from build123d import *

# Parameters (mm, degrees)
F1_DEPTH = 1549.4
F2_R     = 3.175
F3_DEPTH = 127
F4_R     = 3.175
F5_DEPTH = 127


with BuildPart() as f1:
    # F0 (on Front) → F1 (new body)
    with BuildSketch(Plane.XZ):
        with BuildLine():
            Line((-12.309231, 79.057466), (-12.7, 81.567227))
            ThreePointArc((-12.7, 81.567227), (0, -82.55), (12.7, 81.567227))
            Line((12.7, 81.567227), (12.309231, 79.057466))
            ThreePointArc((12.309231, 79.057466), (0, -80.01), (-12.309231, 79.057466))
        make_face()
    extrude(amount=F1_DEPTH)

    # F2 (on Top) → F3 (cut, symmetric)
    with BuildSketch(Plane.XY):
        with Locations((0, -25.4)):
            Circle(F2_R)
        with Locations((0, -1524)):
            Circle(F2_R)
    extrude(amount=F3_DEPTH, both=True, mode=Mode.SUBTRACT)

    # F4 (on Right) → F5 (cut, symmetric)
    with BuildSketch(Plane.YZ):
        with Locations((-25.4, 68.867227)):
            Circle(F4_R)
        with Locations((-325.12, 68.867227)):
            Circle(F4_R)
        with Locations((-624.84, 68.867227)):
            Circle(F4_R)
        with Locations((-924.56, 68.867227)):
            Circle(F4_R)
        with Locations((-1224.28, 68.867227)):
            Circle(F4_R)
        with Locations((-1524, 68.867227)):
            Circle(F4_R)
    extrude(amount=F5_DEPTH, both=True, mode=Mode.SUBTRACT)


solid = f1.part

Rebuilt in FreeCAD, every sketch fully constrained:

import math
import FreeCAD as App
import Part
import Sketcher

V = App.Vector
Q = App.Units.Quantity

doc = App.newDocument("Part")
params = doc.addObject("Spreadsheet::Sheet", "Params")
for row, (alias, value) in enumerate([
    ("sketch1_radius", "3.25 in"),
    ("sketch1_radius2", "3.15 in"),
    ("pad1_length", "61 in"),
    ("sketch2_diameter", "0.25 in"),
    ("pocket1_length", "10 in"),
    ("sketch3_diameter", "0.25 in"),
    ("pocket2_length", "10 in"),
], start=1):
    params.set(f"A{row}", alias)
    params.set(f"B{row}", "=" + value)
    params.setAlias(f"B{row}", alias)

body = doc.addObject("PartDesign::Body", "Body")

# Sketch on XZ plane
sketch1 = doc.addObject("Sketcher::SketchObject", "Sketch")
body.addObject(sketch1)
sketch1.AttachmentSupport = (doc.XZ_Plane, [""])
sketch1.MapMode = "FlatFace"
sketch1.addGeometry(Part.LineSegment(V(-12.3, 79.1, 0), V(-12.7, 81.6, 0)), False)
sketch1.addGeometry(Part.ArcOfCircle(Part.Circle(V(0, 0, 0), V(0, 0, 1), 82.6), math.radians(99), math.radians(441)), False)
sketch1.addGeometry(Part.LineSegment(V(12.7, 81.6, 0), V(12.3, 79.1, 0)), False)
sketch1.addGeometry(Part.ArcOfCircle(Part.Circle(V(0, 0, 0), V(0, 0, 1), 80), math.radians(99), math.radians(441)), False)
sketch1.addConstraint(Sketcher.Constraint("Coincident", 0, 2, 1, 1))
sketch1.addConstraint(Sketcher.Constraint("Coincident", 1, 2, 2, 1))
sketch1.addConstraint(Sketcher.Constraint("Coincident", 2, 2, 3, 2))
sketch1.addConstraint(Sketcher.Constraint("Coincident", 3, 1, 0, 1))
sketch1.addConstraint(Sketcher.Constraint("Coincident", 1, 3, -1, 1))
sketch1.addConstraint(Sketcher.Constraint("Coincident", 3, 3, -1, 1))
sketch1.addConstraint(Sketcher.Constraint("Horizontal", 0, 2, 1, 2))
sketch1.addConstraint(Sketcher.Constraint("Horizontal", 2, 2, 3, 1))
sketch1.addConstraint(Sketcher.Constraint("Radius", 1, Q("3.25 in")))
sketch1.addConstraint(Sketcher.Constraint("Radius", 3, Q("3.15 in")))
sketch1.addConstraint(Sketcher.Constraint("DistanceX", 0, 2, 1, 2, Q("1 in")))
sketch1.addConstraint(Sketcher.Constraint("DistanceX", -1, 1, 2, 2, Q("12.309231 mm")))
sketch1.setExpression("Constraints[8]", "Params.sketch1_radius")
sketch1.setExpression("Constraints[9]", "Params.sketch1_radius2")
pad1 = doc.addObject("PartDesign::Pad", "Pad")
body.addObject(pad1)
pad1.Profile = sketch1
pad1.setExpression("Length", "Params.pad1_length")

# Sketch on XY plane
sketch2 = doc.addObject("Sketcher::SketchObject", "Sketch001")
body.addObject(sketch2)
sketch2.AttachmentSupport = (doc.XY_Plane, [""])
sketch2.MapMode = "FlatFace"
sketch2.addGeometry(Part.Circle(V(0, -25.4, 0), V(0, 0, 1), 3.2), False)
sketch2.addGeometry(Part.Circle(V(0, -1524, 0), V(0, 0, 1), 3.2), False)
sketch2.addConstraint(Sketcher.Constraint("Equal", 0, 1))
sketch2.addConstraint(Sketcher.Constraint("PointOnObject", 0, 3, -2))
sketch2.addConstraint(Sketcher.Constraint("PointOnObject", 1, 3, -2))
sketch2.addConstraint(Sketcher.Constraint("Diameter", 0, Q("0.25 in")))
sketch2.addConstraint(Sketcher.Constraint("DistanceY", 0, 3, -1, 1, Q("1 in")))
sketch2.addConstraint(Sketcher.Constraint("DistanceY", 1, 3, -1, 1, Q("60 in")))
sketch2.setExpression("Constraints[3]", "Params.sketch2_diameter")
pocket1 = doc.addObject("PartDesign::Pocket", "Pocket")
body.addObject(pocket1)
pocket1.Profile = sketch2
pocket1.setExpression("Length", "Params.pocket1_length")
pocket1.Midplane = True

# Sketch on YZ plane
sketch3 = doc.addObject("Sketcher::SketchObject", "Sketch002")
body.addObject(sketch3)
sketch3.AttachmentSupport = (doc.YZ_Plane, [""])
sketch3.MapMode = "FlatFace"
sketch3.addGeometry(Part.Circle(V(-25.4, 68.9, 0), V(0, 0, 1), 3.2), False)
sketch3.addGeometry(Part.Circle(V(-325.1, 68.9, 0), V(0, 0, 1), 3.2), False)
sketch3.addGeometry(Part.Circle(V(-624.8, 68.9, 0), V(0, 0, 1), 3.2), False)
sketch3.addGeometry(Part.Circle(V(-924.6, 68.9, 0), V(0, 0, 1), 3.2), False)
sketch3.addGeometry(Part.Circle(V(-1224.3, 68.9, 0), V(0, 0, 1), 3.2), False)
sketch3.addGeometry(Part.Circle(V(-1524, 68.9, 0), V(0, 0, 1), 3.2), False)
sketch3.addConstraint(Sketcher.Constraint("Equal", 0, 1))
sketch3.addConstraint(Sketcher.Constraint("Equal", 1, 2))
sketch3.addConstraint(Sketcher.Constraint("Equal", 2, 3))
sketch3.addConstraint(Sketcher.Constraint("Equal", 3, 4))
sketch3.addConstraint(Sketcher.Constraint("Equal", 4, 5))
sketch3.addConstraint(Sketcher.Constraint("Horizontal", 0, 3, 1, 3))
sketch3.addConstraint(Sketcher.Constraint("Horizontal", 1, 3, 2, 3))
sketch3.addConstraint(Sketcher.Constraint("Horizontal", 2, 3, 3, 3))
sketch3.addConstraint(Sketcher.Constraint("Horizontal", 3, 3, 4, 3))
sketch3.addConstraint(Sketcher.Constraint("Horizontal", 4, 3, 5, 3))
sketch3.addConstraint(Sketcher.Constraint("Diameter", 0, Q("0.25 in")))
sketch3.addConstraint(Sketcher.Constraint("DistanceX", 0, 3, -1, 1, Q("1 in")))
sketch3.addConstraint(Sketcher.Constraint("DistanceX", 5, 3, -1, 1, Q("60 in")))
sketch3.addConstraint(Sketcher.Constraint("DistanceX", 1, 3, -1, 1, Q("12.8 in")))
sketch3.addConstraint(Sketcher.Constraint("DistanceX", 2, 3, -1, 1, Q("24.6 in")))
sketch3.addConstraint(Sketcher.Constraint("DistanceX", 3, 3, -1, 1, Q("36.4 in")))
sketch3.addConstraint(Sketcher.Constraint("DistanceX", 4, 3, -1, 1, Q("48.2 in")))
sketch3.addConstraint(Sketcher.Constraint("DistanceY", -1, 1, 0, 3, Q("68.867227 mm")))
sketch3.setExpression("Constraints[10]", "Params.sketch3_diameter")
pocket2 = doc.addObject("PartDesign::Pocket", "Pocket001")
body.addObject(pocket2)
pocket2.Profile = sketch3
pocket2.setExpression("Length", "Params.pocket2_length")
pocket2.Midplane = True

doc.recompute()
